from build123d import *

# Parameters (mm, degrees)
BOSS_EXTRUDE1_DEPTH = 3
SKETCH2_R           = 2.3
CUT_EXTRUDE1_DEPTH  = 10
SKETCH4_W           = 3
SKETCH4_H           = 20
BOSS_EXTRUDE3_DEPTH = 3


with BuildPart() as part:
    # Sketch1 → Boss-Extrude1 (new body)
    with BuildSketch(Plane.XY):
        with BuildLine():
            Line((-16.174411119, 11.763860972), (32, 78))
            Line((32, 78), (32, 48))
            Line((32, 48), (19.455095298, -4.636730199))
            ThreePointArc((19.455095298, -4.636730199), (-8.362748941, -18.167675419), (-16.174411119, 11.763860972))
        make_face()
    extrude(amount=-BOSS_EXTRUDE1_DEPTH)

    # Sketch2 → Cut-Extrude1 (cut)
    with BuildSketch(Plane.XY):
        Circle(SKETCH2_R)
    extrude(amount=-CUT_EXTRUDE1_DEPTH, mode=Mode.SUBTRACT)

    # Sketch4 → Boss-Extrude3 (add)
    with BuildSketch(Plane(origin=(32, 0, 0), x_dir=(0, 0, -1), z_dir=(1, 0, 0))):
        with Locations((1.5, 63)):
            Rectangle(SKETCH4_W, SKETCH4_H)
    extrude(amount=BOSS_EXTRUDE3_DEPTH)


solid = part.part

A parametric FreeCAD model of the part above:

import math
import FreeCAD as App
import Part
import Sketcher


def add_polygon(sketch, points):
    """Adds a closed chain of lines whose ends are joined by coincident constraints."""
    first, n = sketch.GeometryCount, len(points)
    for a, b in zip(points, points[1:] + points[:1]):
        sketch.addGeometry(Part.LineSegment(App.Vector(*a, 0), App.Vector(*b, 0)), False)
    for i in range(n):
        sketch.addConstraint(Sketcher.Constraint("Coincident", first + i, 2, first + (i + 1) % n, 1))

doc = App.newDocument("Part")
body = doc.addObject("PartDesign::Body", "Body")

# Sketch on XY plane
sketch1 = doc.addObject("Sketcher::SketchObject", "Sketch")
body.addObject(sketch1)
sketch1.AttachmentSupport = (doc.XY_Plane, [""])
sketch1.MapMode = "FlatFace"
sketch1.addGeometry([
    Part.LineSegment(App.Vector(32, 78, 0), App.Vector(-16, 12, 0)),
    Part.ArcOfCircle(Part.Circle(App.Vector(0, 0, 0), App.Vector(0, 0, 1), 20), math.radians(144), math.radians(347)),
    Part.LineSegment(App.Vector(19, -5, 0), App.Vector(32, 48, 0)),
    Part.LineSegment(App.Vector(32, 48, 0), App.Vector(32, 78, 0)),
], False)
sketch1.addConstraint([
    Sketcher.Constraint("Tangent", 0, 2, 1, 1),
    Sketcher.Constraint("Tangent", 1, 2, 2, 1),
    Sketcher.Constraint("Coincident", 2, 2, 3, 1),
    Sketcher.Constraint("Coincident", 3, 2, 0, 1),
    Sketcher.Constraint("Vertical", 3),
    Sketcher.Constraint("Coincident", 1, 3, -1, 1),
    Sketcher.Constraint("Radius", 1, 20.0),
    Sketcher.Constraint("DistanceY", 3, 1, 3, 2, 30.0),
    Sketcher.Constraint("DistanceX", -1, 1, 2, 2, 32.0),
    Sketcher.Constraint("DistanceY", -1, 1, 2, 2, 48.0),
])
pad1 = doc.addObject("PartDesign::Pad", "Pad")
body.addObject(pad1)
pad1.Profile = sketch1
pad1.Length = 3
pad1.Reversed = True

# Sketch on XY plane
sketch2 = doc.addObject("Sketcher::SketchObject", "Sketch001")
body.addObject(sketch2)
sketch2.AttachmentSupport = (doc.XY_Plane, [""])
sketch2.MapMode = "FlatFace"
sketch2.addGeometry(Part.Circle(App.Vector(0, 0, 0), App.Vector(0, 0, 1), 2.3), False)
sketch2.addConstraint([
    Sketcher.Constraint("Coincident", 0, 3, -1, 1),
    Sketcher.Constraint("Diameter", 0, 4.6),
])
pocket1 = doc.addObject("PartDesign::Pocket", "Pocket")
body.addObject(pocket1)
pocket1.Profile = sketch2
pocket1.Length = 10

# Sketch on YZ plane
sketch3 = doc.addObject("Sketcher::SketchObject", "Sketch002")
body.addObject(sketch3)
sketch3.AttachmentSupport = (doc.YZ_Plane, [""])
sketch3.MapMode = "FlatFace"
sketch3.AttachmentOffset = App.Placement(App.Vector(0, 0, 32), App.Rotation())
add_polygon(sketch3, [(73, 0), (53, 0), (53, -3), (73, -3)])  # lines 0-3
sketch3.addConstraint([
    Sketcher.Constraint("Horizontal", 0),
    Sketcher.Constraint("Vertical", 1),
    Sketcher.Constraint("Horizontal", 2),
    Sketcher.Constraint("Vertical", 3),
    Sketcher.Constraint("PointOnObject", 0, 2, -1),
    Sketcher.Constraint("DistanceX", 0, 2, 0, 1, 20.0),
    Sketcher.Constraint("DistanceY", 1, 2, 1, 1, 3.0),
    Sketcher.Constraint("DistanceX", -1, 1, 0, 2, 53.0),
])
pad2 = doc.addObject("PartDesign::Pad", "Pad001")
body.addObject(pad2)
pad2.Profile = sketch3
pad2.Length = 3

doc.recompute()
